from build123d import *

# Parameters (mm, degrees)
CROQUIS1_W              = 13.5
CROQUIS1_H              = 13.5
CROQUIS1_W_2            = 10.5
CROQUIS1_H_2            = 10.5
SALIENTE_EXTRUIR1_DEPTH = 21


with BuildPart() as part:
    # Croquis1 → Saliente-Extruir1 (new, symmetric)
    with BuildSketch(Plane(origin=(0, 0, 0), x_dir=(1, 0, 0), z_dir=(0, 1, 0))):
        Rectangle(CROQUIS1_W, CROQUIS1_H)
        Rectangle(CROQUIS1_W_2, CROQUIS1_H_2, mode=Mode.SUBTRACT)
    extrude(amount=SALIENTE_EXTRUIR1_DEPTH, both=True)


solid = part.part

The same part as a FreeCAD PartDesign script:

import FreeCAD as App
import Part
import Sketcher

V = App.Vector
Q = App.Units.Quantity

doc = App.newDocument("Part")
body = doc.addObject("PartDesign::Body", "Body")

sketch1 = doc.addObject("Sketcher::SketchObject", "Sketch")
body.addObject(sketch1)
sketch1.AttachmentSupport = (doc.XZ_Plane, [""])
sketch1.MapMode = "FlatFace"
sketch1.addGeometry(Part.LineSegment(V(-7, -7, 0), V(-7, 7, 0)), False)
sketch1.addGeometry(Part.LineSegment(V(-7, 7, 0), V(7, 7, 0)), False)
sketch1.addGeometry(Part.LineSegment(V(7, 7, 0), V(7, -7, 0)), False)
sketch1.addGeometry(Part.LineSegment(V(7, -7, 0), V(-7, -7, 0)), False)
sketch1.addGeometry(Part.LineSegment(V(5, 5, 0), V(-5, 5, 0)), False)
sketch1.addGeometry(Part.LineSegment(V(-5, 5, 0), V(-5, -5, 0)), False)
sketch1.addGeometry(Part.LineSegment(V(-5, -5, 0), V(5, -5, 0)), False)
sketch1.addGeometry(Part.LineSegment(V(5, -5, 0), V(5, 5, 0)), False)
sketch1.addConstraint(Sketcher.Constraint("Coincident", 0, 2, 1, 1))
sketch1.addConstraint(Sketcher.Constraint("Coincident", 1, 2, 2, 1))
sketch1.addConstraint(Sketcher.Constraint("Coincident", 2, 2, 3, 1))
sketch1.addConstraint(Sketcher.Constraint("Coincident", 3, 2, 0, 1))
sketch1.addConstraint(Sketcher.Constraint("Coincident", 4, 2, 5, 1))
sketch1.addConstraint(Sketcher.Constraint("Coincident", 5, 2, 6, 1))
sketch1.addConstraint(Sketcher.Constraint("Coincident", 6, 2, 7, 1))
sketch1.addConstraint(Sketcher.Constraint("Coincident", 7, 2, 4, 1))
sketch1.addConstraint(Sketcher.Constraint("Vertical", 0))
sketch1.addConstraint(Sketcher.Constraint("Horizontal", 1))
sketch1.addConstraint(Sketcher.Constraint("Vertical", 2))
sketch1.addConstraint(Sketcher.Constraint("Horizontal", 3))
sketch1.addConstraint(Sketcher.Constraint("Horizontal", 4))
sketch1.addConstraint(Sketcher.Constraint("Vertical", 5))
sketch1.addConstraint(Sketcher.Constraint("Horizontal", 6))
sketch1.addConstraint(Sketcher.Constraint("Vertical", 7))
sketch1.addConstraint(Sketcher.Constraint("Symmetric", 0, 2, 2, 2, -1, 1))
sketch1.addConstraint(Sketcher.Constraint("Symmetric", 4, 2, 6, 2, -1, 1))
sketch1.addConstraint(Sketcher.Constraint("Equal", 3, 0))
sketch1.addConstraint(Sketcher.Constraint("Equal", 6, 5))
sketch1.addConstraint(Sketcher.Constraint("DistanceX", 1, 1, 1, 2, Q("13.5 mm")))
sketch1.addConstraint(Sketcher.Constraint("DistanceX", 4, 2, 4, 1, Q("10.5 mm")))
pad1 = doc.addObject("PartDesign::Pad", "Pad")
body.addObject(pad1)
pad1.Profile = sketch1
pad1.Length = 42
pad1.Midplane = True

doc.recompute()
